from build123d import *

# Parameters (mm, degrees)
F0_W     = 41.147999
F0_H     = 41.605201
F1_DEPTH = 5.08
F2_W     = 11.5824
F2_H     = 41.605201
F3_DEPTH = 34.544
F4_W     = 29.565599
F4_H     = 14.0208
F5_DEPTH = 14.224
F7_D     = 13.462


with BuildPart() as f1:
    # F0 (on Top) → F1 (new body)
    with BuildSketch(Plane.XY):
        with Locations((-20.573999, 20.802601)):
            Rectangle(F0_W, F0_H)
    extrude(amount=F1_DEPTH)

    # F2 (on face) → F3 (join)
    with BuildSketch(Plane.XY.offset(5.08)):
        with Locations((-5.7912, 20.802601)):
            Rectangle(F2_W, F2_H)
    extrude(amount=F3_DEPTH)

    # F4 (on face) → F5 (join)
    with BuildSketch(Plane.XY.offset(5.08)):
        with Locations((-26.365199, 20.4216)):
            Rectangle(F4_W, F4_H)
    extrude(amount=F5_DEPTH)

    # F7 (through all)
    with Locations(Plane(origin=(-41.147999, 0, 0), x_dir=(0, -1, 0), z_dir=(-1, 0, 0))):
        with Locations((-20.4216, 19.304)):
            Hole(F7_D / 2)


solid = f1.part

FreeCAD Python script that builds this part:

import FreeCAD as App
import Part
import Sketcher
from FreeCAD import Vector
Q = App.Units.Quantity


def add_polygon(sketch, points):
    """Adds a closed chain of lines whose ends are joined by coincident constraints."""
    first, n = sketch.GeometryCount, len(points)
    for a, b in zip(points, points[1:] + points[:1]):
        sketch.addGeometry(Part.LineSegment(App.Vector(*a, 0), App.Vector(*b, 0)), False)
    for i in range(n):
        sketch.addConstraint(Sketcher.Constraint("Coincident", first + i, 2, first + (i + 1) % n, 1))

doc = App.newDocument("Part")
body = doc.addObject("PartDesign::Body", "Body")

sketch1 = doc.addObject("Sketcher::SketchObject", "Sketch")
body.addObject(sketch1)
sketch1.AttachmentSupport = (doc.XY_Plane, [""])
sketch1.MapMode = "FlatFace"
add_polygon(sketch1, [(-41, 42), (-41, 0), (0, 0), (0, 42)])
sketch1.addConstraint([
    Sketcher.Constraint("Vertical", 0),
    Sketcher.Constraint("Horizontal", 1),
    Sketcher.Constraint("Vertical", 2),
    Sketcher.Constraint("Horizontal", 3),
    Sketcher.Constraint("Coincident", 1, 2, -1, 1),
    Sketcher.Constraint("DistanceX", 1, 1, 1, 2, Q("1.62 in")),
    Sketcher.Constraint("DistanceY", 0, 2, 0, 1, Q("1.638 in")),
])
pad1 = doc.addObject("PartDesign::Pad", "Pad")
body.addObject(pad1)
pad1.Profile = sketch1
pad1.Length = Q("0.2 in")

sketch2 = doc.addObject("Sketcher::SketchObject", "Sketch001")
body.addObject(sketch2)
sketch2.AttachmentSupport = (doc.XY_Plane, [""])
sketch2.MapMode = "FlatFace"
sketch2.AttachmentOffset = App.Placement(Vector(0, 0, 0.2 * 25.4), App.Rotation())
add_polygon(sketch2, [(-12, 42), (-12, 0), (0, 0), (0, 42)])
sketch2.addConstraint([
    Sketcher.Constraint("Vertical", 0),
    Sketcher.Constraint("Horizontal", 1),
    Sketcher.Constraint("Vertical", 2),
    Sketcher.Constraint("Horizontal", 3),
    Sketcher.Constraint("Coincident", 1, 2, -1, 1),
    Sketcher.Constraint("DistanceX", 1, 1, 1, 2, Q("0.456 in")),
    Sketcher.Constraint("DistanceY", 0, 2, 0, 1, Q("1.638 in")),
])
pad2 = doc.addObject("PartDesign::Pad", "Pad001")
body.addObject(pad2)
pad2.Profile = sketch2
pad2.Length = Q("1.36 in")

sketch3 = doc.addObject("Sketcher::SketchObject", "Sketch002")
body.addObject(sketch3)
sketch3.AttachmentSupport = (doc.XY_Plane, [""])
sketch3.MapMode = "FlatFace"
sketch3.AttachmentOffset = App.Placement(Vector(0, 0, 0.2 * 25.4), App.Rotation())
add_polygon(sketch3, [(-41, 27), (-41, 13), (-12, 13), (-12, 27)])
sketch3.addConstraint([
    Sketcher.Constraint("Vertical", 0),
    Sketcher.Constraint("Horizontal", 1),
    Sketcher.Constraint("Vertical", 2),
    Sketcher.Constraint("Horizontal", 3),
    Sketcher.Constraint("DistanceX", 1, 1, 1, 2, Q("1.164 in")),
    Sketcher.Constraint("DistanceY", 0, 2, 0, 1, Q("0.552 in")),
    Sketcher.Constraint("DistanceX", 0, 2, -1, 1, Q("1.6199999 in")),
    Sketcher.Constraint("DistanceY", -1, 1, 2, 2, Q("1.08 in")),
])
pad3 = doc.addObject("PartDesign::Pad", "Pad002")
body.addObject(pad3)
pad3.Profile = sketch3
pad3.Length = Q("0.56 in")

sketch4 = doc.addObject("Sketcher::SketchObject", "Sketch003")
body.addObject(sketch4)
sketch4.AttachmentSupport = (doc.YZ_Plane, [""])
sketch4.MapMode = "FlatFace"
sketch4.AttachmentOffset = App.Placement(Vector(0, 0, -1.62 * 25.4), App.Rotation())
sketch4.addGeometry(Part.Circle(Vector(20, 19, 0), Vector(0, 0, 1), 7), False)
sketch4.addConstraint([
    Sketcher.Constraint("Diameter", 0, Q("0.53 in")),
    Sketcher.Constraint("DistanceY", -1, 1, 0, 3, Q("0.76 in")),
    Sketcher.Constraint("DistanceX", -1, 1, 0, 3, Q("0.804 in")),
])
doc.recompute()
hole = doc.addObject("PartDesign::Hole", "Hole")
body.addObject(hole)
hole.Profile = sketch4
hole.ThreadType = "None"
hole.Diameter = Q("0.53 in")
hole.DepthType = "ThroughAll"
hole.Reversed = True

doc.recompute()
